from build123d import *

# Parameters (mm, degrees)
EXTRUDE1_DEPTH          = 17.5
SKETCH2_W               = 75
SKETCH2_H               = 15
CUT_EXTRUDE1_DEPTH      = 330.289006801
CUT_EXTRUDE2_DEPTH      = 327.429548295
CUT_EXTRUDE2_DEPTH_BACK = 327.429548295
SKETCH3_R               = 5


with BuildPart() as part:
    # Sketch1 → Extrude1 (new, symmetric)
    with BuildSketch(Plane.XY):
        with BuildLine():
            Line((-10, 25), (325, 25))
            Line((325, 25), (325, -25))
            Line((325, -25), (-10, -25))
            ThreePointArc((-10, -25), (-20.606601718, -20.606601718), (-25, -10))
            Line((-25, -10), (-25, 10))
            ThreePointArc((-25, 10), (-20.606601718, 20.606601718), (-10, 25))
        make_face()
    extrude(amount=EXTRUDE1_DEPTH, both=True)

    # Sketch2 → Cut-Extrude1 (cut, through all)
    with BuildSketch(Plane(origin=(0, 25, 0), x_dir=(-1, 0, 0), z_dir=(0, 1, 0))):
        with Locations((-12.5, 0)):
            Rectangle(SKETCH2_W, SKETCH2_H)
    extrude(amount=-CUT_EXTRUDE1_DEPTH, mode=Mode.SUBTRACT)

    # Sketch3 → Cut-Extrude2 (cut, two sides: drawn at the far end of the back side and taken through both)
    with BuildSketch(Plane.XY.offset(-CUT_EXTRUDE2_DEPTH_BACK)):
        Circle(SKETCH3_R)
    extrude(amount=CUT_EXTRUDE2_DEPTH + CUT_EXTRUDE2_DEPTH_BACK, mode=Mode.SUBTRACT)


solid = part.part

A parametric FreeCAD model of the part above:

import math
import FreeCAD as App
import Part
import Sketcher
from FreeCAD import Vector

doc = App.newDocument("Part")
body = doc.addObject("PartDesign::Body", "Body")

sketch1 = body.newObject("Sketcher::SketchObject", "Sketch")
sketch1.AttachmentSupport = (doc.getObject("XY_Plane"), [""])
sketch1.MapMode = "FlatFace"
sketch1.addGeometry([
    Part.LineSegment(Vector(325, 25, 0), Vector(-10, 25, 0)),
    Part.ArcOfCircle(Part.Circle(Vector(-10, 10, 0), Vector(0, 0, 1), 15), math.radians(90), math.radians(180)),
    Part.LineSegment(Vector(-25, 10, 0), Vector(-25, -10, 0)),
    Part.ArcOfCircle(Part.Circle(Vector(-10, -10, 0), Vector(0, 0, 1), 15), math.radians(180), math.radians(270)),
    Part.LineSegment(Vector(-10, -25, 0), Vector(325, -25, 0)),
    Part.LineSegment(Vector(325, -25, 0), Vector(325, 25, 0)),
], False)
sketch1.addConstraint([
    Sketcher.Constraint("Tangent", 0, 2, 1, 1),
    Sketcher.Constraint("Tangent", 1, 2, 2, 1),
    Sketcher.Constraint("Tangent", 2, 2, 3, 1),
    Sketcher.Constraint("Tangent", 3, 2, 4, 1),
    Sketcher.Constraint("Coincident", 4, 2, 5, 1),
    Sketcher.Constraint("Coincident", 5, 2, 0, 1),
    Sketcher.Constraint("Horizontal", 0),
    Sketcher.Constraint("Vertical", 2),
    Sketcher.Constraint("Horizontal", 4),
    Sketcher.Constraint("Vertical", 5),
    Sketcher.Constraint("Equal", 1, 3),
    Sketcher.Constraint("Radius", 1, 15.0),
    Sketcher.Constraint("DistanceX", 0, 2, 0, 1, 335.0),
    Sketcher.Constraint("DistanceY", 2, 2, 2, 1, 20.0),
    Sketcher.Constraint("DistanceX", 1, 3, -1, 1, 10.0),
    Sketcher.Constraint("DistanceY", -1, 1, 1, 3, 10.0),
])
pad1 = body.newObject("PartDesign::Pad", "Pad")
pad1.Profile = sketch1
pad1.Length = 35
pad1.Midplane = True

sketch2 = body.newObject("Sketcher::SketchObject", "Sketch001")
sketch2.AttachmentSupport = (doc.getObject("XZ_Plane"), [""])
sketch2.MapMode = "FlatFace"
sketch2.AttachmentOffset = App.Placement(Vector(0, 0, -25), App.Rotation())
sketch2.addGeometry([
    Part.LineSegment(Vector(50, 7.5, 0), Vector(50, -7.5, 0)),
    Part.LineSegment(Vector(50, -7.5, 0), Vector(-25, -7.5, 0)),
    Part.LineSegment(Vector(-25, -7.5, 0), Vector(-25, 7.5, 0)),
    Part.LineSegment(Vector(-25, 7.5, 0), Vector(50, 7.5, 0)),
], False)
sketch2.addConstraint([
    Sketcher.Constraint("Coincident", 0, 2, 1, 1),
    Sketcher.Constraint("Coincident", 1, 2, 2, 1),
    Sketcher.Constraint("Coincident", 2, 2, 3, 1),
    Sketcher.Constraint("Coincident", 3, 2, 0, 1),
    Sketcher.Constraint("Vertical", 0),
    Sketcher.Constraint("Horizontal", 1),
    Sketcher.Constraint("Vertical", 2),
    Sketcher.Constraint("Horizontal", 3),
    Sketcher.Constraint("DistanceX", 1, 2, 1, 1, 75.0),
    Sketcher.Constraint("DistanceY", 0, 2, 0, 1, 15.0),
    Sketcher.Constraint("DistanceX", -1, 1, 0, 2, 50.0),
    Sketcher.Constraint("DistanceY", 0, 2, -1, 1, 7.5),
])
pocket1 = body.newObject("PartDesign::Pocket", "Pocket")
pocket1.Profile = sketch2
pocket1.Type = "ThroughAll"
pocket1.Reversed = True

sketch3 = body.newObject("Sketcher::SketchObject", "Sketch002")
sketch3.AttachmentSupport = (doc.getObject("XY_Plane"), [""])
sketch3.MapMode = "FlatFace"
sketch3.addGeometry(Part.Circle(Vector(0, 0, 0), Vector(0, 0, 1), 5), False)
sketch3.addConstraint([
    Sketcher.Constraint("Coincident", 0, 3, -1, 1),
    Sketcher.Constraint("Diameter", 0, 10.0),
])
pocket2 = body.newObject("PartDesign::Pocket", "Pocket001")
pocket2.Profile = sketch3
pocket2.Type = "ThroughAll"
pocket2.Midplane = True

doc.recompute()
